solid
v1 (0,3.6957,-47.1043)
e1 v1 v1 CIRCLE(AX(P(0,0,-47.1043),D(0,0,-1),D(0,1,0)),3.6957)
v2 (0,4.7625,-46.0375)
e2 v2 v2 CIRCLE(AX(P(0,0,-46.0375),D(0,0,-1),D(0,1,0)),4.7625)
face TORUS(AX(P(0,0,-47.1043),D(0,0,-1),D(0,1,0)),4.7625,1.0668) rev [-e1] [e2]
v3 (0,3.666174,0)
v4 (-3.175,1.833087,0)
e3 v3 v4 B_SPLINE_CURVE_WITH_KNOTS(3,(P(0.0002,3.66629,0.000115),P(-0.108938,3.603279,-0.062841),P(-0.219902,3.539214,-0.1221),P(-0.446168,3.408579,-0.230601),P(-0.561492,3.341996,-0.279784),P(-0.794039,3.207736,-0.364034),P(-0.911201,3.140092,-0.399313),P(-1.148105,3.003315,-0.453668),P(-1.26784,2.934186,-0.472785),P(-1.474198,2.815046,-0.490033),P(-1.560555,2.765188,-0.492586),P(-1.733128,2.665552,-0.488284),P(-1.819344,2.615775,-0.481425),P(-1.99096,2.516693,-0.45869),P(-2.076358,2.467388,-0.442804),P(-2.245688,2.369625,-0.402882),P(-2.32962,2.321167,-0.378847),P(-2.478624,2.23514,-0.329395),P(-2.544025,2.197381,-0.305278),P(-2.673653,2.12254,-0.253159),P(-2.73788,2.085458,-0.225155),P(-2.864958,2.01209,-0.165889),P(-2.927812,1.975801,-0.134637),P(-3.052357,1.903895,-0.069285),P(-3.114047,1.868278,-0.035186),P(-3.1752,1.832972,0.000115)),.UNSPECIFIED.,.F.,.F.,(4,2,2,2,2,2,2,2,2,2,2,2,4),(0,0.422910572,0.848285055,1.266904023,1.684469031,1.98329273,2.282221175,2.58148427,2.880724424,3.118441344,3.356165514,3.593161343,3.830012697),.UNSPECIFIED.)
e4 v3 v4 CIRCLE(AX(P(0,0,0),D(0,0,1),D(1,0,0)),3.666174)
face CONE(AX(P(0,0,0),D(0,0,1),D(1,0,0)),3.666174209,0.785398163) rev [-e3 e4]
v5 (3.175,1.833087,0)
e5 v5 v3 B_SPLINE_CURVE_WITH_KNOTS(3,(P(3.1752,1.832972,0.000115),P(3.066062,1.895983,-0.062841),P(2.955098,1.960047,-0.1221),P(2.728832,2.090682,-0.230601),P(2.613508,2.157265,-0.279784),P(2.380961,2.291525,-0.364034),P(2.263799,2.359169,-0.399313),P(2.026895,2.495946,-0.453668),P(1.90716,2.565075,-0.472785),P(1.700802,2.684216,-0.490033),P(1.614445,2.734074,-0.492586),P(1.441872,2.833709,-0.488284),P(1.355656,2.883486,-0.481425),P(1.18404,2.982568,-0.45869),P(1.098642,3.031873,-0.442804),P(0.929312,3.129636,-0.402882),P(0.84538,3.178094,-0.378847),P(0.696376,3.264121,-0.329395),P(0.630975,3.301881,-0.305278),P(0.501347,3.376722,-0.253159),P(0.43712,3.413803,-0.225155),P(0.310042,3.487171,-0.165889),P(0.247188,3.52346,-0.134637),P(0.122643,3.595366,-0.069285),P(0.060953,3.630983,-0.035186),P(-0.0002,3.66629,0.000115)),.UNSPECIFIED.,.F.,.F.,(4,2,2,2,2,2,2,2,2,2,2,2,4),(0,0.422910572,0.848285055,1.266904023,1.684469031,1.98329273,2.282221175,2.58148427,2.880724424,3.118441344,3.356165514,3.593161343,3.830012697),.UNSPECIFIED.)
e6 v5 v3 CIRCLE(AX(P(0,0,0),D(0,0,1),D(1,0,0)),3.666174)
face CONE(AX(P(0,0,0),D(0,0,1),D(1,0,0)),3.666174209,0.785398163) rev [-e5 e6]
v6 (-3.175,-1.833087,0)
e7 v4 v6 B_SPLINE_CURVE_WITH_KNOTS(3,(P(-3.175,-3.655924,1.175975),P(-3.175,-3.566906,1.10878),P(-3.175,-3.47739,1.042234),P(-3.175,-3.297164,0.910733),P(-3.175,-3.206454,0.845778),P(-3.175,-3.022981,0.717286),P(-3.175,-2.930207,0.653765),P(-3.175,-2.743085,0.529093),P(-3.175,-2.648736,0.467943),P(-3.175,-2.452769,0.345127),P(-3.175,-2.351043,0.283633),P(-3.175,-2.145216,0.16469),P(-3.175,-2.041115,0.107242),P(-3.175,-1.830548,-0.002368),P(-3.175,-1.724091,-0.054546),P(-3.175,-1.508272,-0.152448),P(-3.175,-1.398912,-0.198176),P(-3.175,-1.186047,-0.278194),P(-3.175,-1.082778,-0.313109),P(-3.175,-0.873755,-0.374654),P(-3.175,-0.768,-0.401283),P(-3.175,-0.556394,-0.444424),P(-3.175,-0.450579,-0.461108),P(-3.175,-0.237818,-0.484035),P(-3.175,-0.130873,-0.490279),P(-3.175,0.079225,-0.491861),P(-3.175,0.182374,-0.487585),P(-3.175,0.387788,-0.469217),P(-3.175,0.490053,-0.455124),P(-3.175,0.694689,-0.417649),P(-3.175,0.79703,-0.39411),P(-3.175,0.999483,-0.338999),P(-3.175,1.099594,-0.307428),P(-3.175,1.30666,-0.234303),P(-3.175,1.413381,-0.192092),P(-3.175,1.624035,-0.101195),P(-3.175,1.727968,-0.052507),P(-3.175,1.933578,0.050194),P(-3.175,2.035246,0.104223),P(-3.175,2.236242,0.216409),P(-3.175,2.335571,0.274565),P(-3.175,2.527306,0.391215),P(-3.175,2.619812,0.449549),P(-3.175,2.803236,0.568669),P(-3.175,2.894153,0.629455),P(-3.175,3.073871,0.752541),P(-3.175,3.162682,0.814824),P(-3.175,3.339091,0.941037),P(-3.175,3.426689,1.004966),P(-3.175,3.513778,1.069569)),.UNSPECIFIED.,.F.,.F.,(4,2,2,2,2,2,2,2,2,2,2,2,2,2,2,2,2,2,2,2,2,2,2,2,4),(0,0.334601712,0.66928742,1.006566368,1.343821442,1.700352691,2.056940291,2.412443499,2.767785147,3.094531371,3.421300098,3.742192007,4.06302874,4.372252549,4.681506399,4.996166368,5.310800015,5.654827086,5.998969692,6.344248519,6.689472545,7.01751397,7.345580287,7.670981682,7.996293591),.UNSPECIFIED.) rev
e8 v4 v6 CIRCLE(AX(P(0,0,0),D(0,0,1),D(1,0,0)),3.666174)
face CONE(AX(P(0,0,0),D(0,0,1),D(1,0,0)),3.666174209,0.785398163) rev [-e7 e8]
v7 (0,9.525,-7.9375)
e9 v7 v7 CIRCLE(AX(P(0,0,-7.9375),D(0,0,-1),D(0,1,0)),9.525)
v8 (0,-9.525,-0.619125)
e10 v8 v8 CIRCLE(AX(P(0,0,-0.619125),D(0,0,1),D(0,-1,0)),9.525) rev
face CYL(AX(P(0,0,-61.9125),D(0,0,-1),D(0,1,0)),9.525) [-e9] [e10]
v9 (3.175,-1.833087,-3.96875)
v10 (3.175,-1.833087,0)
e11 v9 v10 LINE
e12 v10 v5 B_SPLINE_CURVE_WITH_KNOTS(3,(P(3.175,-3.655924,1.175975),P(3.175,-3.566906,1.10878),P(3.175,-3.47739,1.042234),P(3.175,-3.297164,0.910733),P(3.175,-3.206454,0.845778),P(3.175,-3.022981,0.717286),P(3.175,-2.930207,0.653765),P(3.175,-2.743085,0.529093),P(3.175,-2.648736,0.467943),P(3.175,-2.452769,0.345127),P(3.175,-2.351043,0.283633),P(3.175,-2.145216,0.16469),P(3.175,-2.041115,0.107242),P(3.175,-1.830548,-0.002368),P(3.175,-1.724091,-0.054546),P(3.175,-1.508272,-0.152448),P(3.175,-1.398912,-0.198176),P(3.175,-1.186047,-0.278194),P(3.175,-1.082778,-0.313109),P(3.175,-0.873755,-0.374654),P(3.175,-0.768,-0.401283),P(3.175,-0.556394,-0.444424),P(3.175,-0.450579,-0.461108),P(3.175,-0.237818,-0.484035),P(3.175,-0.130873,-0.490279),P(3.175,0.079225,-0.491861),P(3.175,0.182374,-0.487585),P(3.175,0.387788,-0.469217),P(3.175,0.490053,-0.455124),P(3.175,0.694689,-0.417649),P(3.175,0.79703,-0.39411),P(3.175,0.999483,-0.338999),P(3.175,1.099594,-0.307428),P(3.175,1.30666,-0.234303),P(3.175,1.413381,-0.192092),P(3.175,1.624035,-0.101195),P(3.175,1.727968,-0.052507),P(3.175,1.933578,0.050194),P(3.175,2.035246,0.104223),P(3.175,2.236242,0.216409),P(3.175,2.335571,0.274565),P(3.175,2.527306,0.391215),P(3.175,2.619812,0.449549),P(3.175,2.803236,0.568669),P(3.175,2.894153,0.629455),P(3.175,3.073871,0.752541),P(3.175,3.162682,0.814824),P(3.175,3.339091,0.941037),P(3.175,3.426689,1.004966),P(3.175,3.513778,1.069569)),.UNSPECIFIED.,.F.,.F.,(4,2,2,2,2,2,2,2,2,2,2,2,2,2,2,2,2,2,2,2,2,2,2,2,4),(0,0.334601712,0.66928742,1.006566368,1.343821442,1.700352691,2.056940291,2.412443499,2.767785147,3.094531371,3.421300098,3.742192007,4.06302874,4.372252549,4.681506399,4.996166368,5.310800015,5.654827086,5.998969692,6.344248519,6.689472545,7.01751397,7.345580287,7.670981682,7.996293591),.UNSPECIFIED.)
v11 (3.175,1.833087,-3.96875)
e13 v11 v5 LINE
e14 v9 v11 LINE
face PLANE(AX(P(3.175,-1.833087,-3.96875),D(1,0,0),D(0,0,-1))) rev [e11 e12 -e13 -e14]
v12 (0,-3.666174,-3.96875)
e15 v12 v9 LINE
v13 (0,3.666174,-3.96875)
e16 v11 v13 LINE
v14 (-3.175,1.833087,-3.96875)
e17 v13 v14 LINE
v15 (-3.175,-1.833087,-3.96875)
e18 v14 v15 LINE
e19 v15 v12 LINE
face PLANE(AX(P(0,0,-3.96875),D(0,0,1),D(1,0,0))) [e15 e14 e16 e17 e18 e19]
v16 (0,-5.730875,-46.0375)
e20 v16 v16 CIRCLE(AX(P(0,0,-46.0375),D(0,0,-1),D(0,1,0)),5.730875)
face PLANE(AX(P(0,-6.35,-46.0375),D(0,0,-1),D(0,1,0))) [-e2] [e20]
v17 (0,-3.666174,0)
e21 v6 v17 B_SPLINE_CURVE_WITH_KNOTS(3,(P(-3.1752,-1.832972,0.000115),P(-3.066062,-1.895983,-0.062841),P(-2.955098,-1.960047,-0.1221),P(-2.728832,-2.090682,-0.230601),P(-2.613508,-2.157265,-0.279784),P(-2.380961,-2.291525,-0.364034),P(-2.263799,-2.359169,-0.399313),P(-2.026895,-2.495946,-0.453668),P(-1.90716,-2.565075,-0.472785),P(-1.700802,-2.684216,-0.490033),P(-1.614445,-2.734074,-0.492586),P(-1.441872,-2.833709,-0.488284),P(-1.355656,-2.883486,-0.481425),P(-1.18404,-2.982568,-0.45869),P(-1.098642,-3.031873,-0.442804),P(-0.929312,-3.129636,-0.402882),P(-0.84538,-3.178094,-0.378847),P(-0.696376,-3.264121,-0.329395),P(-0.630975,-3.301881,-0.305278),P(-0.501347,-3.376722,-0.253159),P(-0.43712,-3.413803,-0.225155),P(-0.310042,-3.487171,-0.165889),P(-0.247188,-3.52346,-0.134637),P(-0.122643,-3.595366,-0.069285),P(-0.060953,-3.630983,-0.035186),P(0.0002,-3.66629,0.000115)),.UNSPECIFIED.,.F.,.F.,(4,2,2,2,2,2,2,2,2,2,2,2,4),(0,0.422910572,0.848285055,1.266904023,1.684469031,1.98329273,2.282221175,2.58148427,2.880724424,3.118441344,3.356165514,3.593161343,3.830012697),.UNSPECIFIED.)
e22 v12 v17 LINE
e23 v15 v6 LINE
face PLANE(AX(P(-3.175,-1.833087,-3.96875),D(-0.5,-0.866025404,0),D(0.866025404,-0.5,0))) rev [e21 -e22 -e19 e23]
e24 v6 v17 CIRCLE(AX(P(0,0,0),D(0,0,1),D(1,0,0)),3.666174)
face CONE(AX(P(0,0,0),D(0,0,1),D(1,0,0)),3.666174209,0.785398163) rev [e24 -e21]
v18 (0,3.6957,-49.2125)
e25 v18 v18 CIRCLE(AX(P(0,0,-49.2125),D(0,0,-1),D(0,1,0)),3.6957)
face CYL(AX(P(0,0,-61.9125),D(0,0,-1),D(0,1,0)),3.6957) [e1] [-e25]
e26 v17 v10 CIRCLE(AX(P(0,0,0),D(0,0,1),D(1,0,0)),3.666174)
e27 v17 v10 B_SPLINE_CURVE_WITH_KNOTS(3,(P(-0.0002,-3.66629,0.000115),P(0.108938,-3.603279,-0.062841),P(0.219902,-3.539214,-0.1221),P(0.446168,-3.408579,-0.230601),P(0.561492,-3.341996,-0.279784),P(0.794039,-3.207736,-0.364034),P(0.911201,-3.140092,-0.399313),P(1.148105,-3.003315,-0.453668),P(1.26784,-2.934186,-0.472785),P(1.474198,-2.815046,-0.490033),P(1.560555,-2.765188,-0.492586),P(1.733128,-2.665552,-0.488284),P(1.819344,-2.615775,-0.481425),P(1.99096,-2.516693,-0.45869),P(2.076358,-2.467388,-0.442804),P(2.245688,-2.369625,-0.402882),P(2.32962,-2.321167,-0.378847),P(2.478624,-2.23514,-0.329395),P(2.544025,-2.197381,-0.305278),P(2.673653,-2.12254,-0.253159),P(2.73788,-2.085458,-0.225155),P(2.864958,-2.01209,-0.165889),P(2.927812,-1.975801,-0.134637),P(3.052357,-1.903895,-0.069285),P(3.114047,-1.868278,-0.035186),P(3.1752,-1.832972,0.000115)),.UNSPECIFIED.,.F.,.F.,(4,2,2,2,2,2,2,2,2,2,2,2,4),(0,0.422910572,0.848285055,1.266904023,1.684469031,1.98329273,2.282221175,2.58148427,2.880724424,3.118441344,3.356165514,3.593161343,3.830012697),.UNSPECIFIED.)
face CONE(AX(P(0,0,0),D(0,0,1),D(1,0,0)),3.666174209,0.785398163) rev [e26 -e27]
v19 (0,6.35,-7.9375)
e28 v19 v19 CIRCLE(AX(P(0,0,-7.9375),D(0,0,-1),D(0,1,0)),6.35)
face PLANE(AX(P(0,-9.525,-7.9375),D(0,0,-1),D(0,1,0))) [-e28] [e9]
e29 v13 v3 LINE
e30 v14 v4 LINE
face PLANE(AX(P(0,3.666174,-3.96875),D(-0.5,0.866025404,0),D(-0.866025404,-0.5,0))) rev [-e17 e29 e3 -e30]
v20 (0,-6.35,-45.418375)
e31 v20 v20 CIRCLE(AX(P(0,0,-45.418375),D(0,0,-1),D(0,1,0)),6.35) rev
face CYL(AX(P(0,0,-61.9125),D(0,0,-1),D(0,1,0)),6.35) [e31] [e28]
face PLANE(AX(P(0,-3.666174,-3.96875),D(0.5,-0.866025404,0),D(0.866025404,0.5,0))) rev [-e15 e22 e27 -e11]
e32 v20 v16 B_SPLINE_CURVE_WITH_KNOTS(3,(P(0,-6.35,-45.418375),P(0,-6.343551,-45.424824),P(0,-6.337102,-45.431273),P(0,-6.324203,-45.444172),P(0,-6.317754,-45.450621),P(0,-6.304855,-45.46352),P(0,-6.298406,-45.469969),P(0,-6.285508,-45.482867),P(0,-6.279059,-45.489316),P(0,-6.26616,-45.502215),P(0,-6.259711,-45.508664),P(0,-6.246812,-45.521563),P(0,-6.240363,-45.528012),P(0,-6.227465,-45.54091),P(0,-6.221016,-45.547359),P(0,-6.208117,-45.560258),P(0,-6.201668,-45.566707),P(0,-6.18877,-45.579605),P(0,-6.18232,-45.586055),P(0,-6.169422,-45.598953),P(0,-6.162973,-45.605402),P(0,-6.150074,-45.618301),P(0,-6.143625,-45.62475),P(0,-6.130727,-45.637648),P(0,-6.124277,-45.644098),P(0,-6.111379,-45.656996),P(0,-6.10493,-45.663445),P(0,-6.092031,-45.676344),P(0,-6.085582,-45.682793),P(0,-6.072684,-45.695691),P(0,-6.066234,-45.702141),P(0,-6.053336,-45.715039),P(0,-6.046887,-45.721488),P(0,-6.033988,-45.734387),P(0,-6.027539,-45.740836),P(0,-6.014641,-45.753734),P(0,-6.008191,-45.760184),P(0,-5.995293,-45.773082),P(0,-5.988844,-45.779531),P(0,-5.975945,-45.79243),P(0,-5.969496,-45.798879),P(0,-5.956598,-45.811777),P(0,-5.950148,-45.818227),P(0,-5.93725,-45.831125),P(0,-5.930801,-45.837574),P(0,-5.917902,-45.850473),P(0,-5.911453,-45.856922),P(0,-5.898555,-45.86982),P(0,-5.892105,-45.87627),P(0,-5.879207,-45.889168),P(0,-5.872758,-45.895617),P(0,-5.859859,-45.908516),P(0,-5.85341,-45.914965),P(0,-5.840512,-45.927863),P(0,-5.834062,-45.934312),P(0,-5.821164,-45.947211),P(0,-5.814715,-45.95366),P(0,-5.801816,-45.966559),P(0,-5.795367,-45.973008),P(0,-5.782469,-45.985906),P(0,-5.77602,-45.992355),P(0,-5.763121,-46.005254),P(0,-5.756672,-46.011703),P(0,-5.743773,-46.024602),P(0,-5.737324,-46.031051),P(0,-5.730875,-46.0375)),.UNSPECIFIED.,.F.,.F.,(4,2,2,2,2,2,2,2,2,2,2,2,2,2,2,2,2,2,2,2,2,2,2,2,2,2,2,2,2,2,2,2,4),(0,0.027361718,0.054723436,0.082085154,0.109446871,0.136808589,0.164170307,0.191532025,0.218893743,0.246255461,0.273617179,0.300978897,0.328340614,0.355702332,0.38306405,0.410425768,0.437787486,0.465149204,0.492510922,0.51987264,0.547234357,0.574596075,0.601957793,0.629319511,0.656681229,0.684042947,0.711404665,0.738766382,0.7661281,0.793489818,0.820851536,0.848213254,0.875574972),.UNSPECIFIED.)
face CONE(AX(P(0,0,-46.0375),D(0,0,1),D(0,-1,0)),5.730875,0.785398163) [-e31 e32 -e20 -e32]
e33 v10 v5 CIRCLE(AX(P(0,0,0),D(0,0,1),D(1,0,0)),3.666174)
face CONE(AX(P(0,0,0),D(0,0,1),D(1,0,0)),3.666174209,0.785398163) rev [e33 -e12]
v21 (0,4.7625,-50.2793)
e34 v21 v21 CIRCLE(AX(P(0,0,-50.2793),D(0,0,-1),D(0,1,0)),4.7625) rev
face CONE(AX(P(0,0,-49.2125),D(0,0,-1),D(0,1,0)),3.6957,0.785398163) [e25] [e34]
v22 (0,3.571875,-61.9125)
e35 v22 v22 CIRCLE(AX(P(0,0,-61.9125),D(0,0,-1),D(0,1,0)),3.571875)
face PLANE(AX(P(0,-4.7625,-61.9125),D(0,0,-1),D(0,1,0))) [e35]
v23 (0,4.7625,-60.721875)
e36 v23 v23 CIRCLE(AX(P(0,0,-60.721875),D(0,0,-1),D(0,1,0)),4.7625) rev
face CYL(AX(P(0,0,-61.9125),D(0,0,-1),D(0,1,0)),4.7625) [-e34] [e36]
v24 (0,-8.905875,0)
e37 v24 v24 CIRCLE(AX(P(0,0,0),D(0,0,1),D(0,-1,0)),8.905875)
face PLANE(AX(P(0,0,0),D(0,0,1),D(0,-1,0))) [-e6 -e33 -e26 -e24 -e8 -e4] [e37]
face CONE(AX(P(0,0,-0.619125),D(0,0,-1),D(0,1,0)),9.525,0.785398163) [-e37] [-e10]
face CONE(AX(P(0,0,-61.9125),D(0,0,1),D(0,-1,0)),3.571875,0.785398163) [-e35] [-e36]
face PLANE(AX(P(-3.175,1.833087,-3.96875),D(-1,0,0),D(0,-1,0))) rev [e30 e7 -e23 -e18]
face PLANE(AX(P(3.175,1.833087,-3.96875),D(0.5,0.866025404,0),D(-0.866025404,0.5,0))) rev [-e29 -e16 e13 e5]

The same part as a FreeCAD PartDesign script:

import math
import FreeCAD as App
import Part
import Sketcher
Q = App.Units.Quantity


def edges_at(feature, points):
    """Names of the edges that pass closest to the given points."""
    edges = feature.Shape.Edges
    near = lambda p: min(range(len(edges)), key=lambda i: edges[i].distToShape(Part.Vertex(*p))[0])
    return sorted({f"Edge{near(p) + 1}" for p in points})

doc = App.newDocument("Part")
body = doc.addObject("PartDesign::Body", "Body")

# Sketch on YZ plane
sketch1 = doc.addObject("Sketcher::SketchObject", "Sketch")
body.addObject(sketch1)
sketch1.AttachmentSupport = (doc.YZ_Plane, [""])
sketch1.MapMode = "FlatFace"
sketch1.addGeometry(Part.LineSegment(App.Vector(9.5, -7.9, 0), App.Vector(9.5, 0, 0)), False)
sketch1.addGeometry(Part.LineSegment(App.Vector(9.5, 0, 0), App.Vector(0, 0, 0)), False)
sketch1.addGeometry(Part.LineSegment(App.Vector(0, 0, 0), App.Vector(0, -61.9, 0)), False)
sketch1.addGeometry(Part.LineSegment(App.Vector(0, -61.9, 0), App.Vector(4.8, -61.9, 0)), False)
sketch1.addGeometry(Part.LineSegment(App.Vector(4.8, -61.9, 0), App.Vector(4.8, -46, 0)), False)
sketch1.addGeometry(Part.LineSegment(App.Vector(4.8, -46, 0), App.Vector(6.3, -46, 0)), False)
sketch1.addGeometry(Part.LineSegment(App.Vector(6.3, -46, 0), App.Vector(6.3, -7.9, 0)), False)
sketch1.addGeometry(Part.LineSegment(App.Vector(6.3, -7.9, 0), App.Vector(9.5, -7.9, 0)), False)
sketch1.addConstraint(Sketcher.Constraint("Coincident", 0, 2, 1, 1))
sketch1.addConstraint(Sketcher.Constraint("Coincident", 1, 2, 2, 1))
sketch1.addConstraint(Sketcher.Constraint("Coincident", 2, 2, 3, 1))
sketch1.addConstraint(Sketcher.Constraint("Coincident", 3, 2, 4, 1))
sketch1.addConstraint(Sketcher.Constraint("Coincident", 4, 2, 5, 1))
sketch1.addConstraint(Sketcher.Constraint("Coincident", 5, 2, 6, 1))
sketch1.addConstraint(Sketcher.Constraint("Coincident", 6, 2, 7, 1))
sketch1.addConstraint(Sketcher.Constraint("Coincident", 7, 2, 0, 1))
sketch1.addConstraint(Sketcher.Constraint("Vertical", 0))
sketch1.addConstraint(Sketcher.Constraint("Horizontal", 1))
sketch1.addConstraint(Sketcher.Constraint("Vertical", 2))
sketch1.addConstraint(Sketcher.Constraint("Horizontal", 3))
sketch1.addConstraint(Sketcher.Constraint("Vertical", 4))
sketch1.addConstraint(Sketcher.Constraint("Horizontal", 5))
sketch1.addConstraint(Sketcher.Constraint("Vertical", 6))
sketch1.addConstraint(Sketcher.Constraint("Horizontal", 7))
sketch1.addConstraint(Sketcher.Constraint("Coincident", 1, 2, -1, 1))
sketch1.addConstraint(Sketcher.Constraint("DistanceY", 6, 1, 6, 2, Q("1.5 in")))
sketch1.addConstraint(Sketcher.Constraint("DistanceX", 1, 2, 1, 1, Q("0.375 in")))
sketch1.addConstraint(Sketcher.Constraint("DistanceX", 3, 1, 3, 2, Q("0.1875 in")))
sketch1.addConstraint(Sketcher.Constraint("DistanceX", 5, 1, 5, 2, Q("0.0625 in")))
sketch1.addConstraint(Sketcher.Constraint("DistanceY", 0, 1, 0, 2, Q("0.3125 in")))
sketch1.addConstraint(Sketcher.Constraint("DistanceY", 2, 2, 2, 1, Q("2.4375 in")))
revolution = doc.addObject("PartDesign::Revolution", "Revolution")
body.addObject(revolution)
revolution.Profile = sketch1
revolution.ReferenceAxis = (sketch1, ["V_Axis"])
revolution.Angle = 360

# Sketch on YZ plane
sketch2 = doc.addObject("Sketcher::SketchObject", "Sketch001")
body.addObject(sketch2)
sketch2.AttachmentSupport = (doc.YZ_Plane, [""])
sketch2.MapMode = "FlatFace"
sketch2.addGeometry(Part.LineSegment(App.Vector(6.3, -51.9, 0), App.Vector(6.3, -46, 0)), False)
sketch2.addGeometry(Part.LineSegment(App.Vector(6.3, -46, 0), App.Vector(4.8, -46, 0)), False)
sketch2.addGeometry(Part.ArcOfCircle(Part.Circle(App.Vector(4.8, -47.1, 0), App.Vector(0, 0, 1), 1.1), math.radians(90), math.radians(180)), False)
sketch2.addGeometry(Part.LineSegment(App.Vector(3.7, -47.1, 0), App.Vector(3.7, -49.2, 0)), False)
sketch2.addGeometry(Part.LineSegment(App.Vector(3.7, -49.2, 0), App.Vector(6.3, -51.9, 0)), False)
sketch2.addConstraint(Sketcher.Constraint("Coincident", 0, 2, 1, 1))
sketch2.addConstraint(Sketcher.Constraint("Tangent", 1, 2, 2, 1))
sketch2.addConstraint(Sketcher.Constraint("Tangent", 2, 2, 3, 1))
sketch2.addConstraint(Sketcher.Constraint("Coincident", 3, 2, 4, 1))
sketch2.addConstraint(Sketcher.Constraint("Coincident", 4, 2, 0, 1))
sketch2.addConstraint(Sketcher.Constraint("Vertical", 0))
sketch2.addConstraint(Sketcher.Constraint("Horizontal", 1))
sketch2.addConstraint(Sketcher.Constraint("Vertical", 3))
sketch2.addConstraint(Sketcher.Constraint("Angle", 4, Q("-45 deg")))
sketch2.addConstraint(Sketcher.Constraint("Radius", 2, Q("0.042 in")))
sketch2.addConstraint(Sketcher.Constraint("DistanceX", 1, 2, 1, 1, Q("0.0625 in")))
sketch2.addConstraint(Sketcher.Constraint("DistanceY", 3, 2, 3, 1, Q("0.083 in")))
sketch2.addConstraint(Sketcher.Constraint("DistanceX", -1, 1, 0, 2, Q("0.25 in")))
sketch2.addConstraint(Sketcher.Constraint("DistanceY", 0, 2, -1, 1, Q("1.8125 in")))
groove = doc.addObject("PartDesign::Groove", "Groove")
body.addObject(groove)
groove.Profile = sketch2
groove.ReferenceAxis = (sketch2, ["V_Axis"])
groove.Angle = 360
doc.recompute()

chamfer = doc.addObject("PartDesign::Chamfer", "Chamfer")
body.addObject(chamfer)
chamfer.Base = (groove, edges_at(groove, [(0, -4.763, -61.913)]))
chamfer.Size = Q("0.046875 in")
doc.recompute()

chamfer2 = doc.addObject("PartDesign::Chamfer", "Chamfer001")
body.addObject(chamfer2)
chamfer2.Base = (chamfer, edges_at(chamfer, [(0, -6.35, -46.038), (0, -9.525, 0)]))
chamfer2.Size = 0.619125

# Sketch on XY plane
sketch3 = doc.addObject("Sketcher::SketchObject", "Sketch002")
body.addObject(sketch3)
sketch3.AttachmentSupport = (doc.XY_Plane, [""])
sketch3.MapMode = "FlatFace"
sketch3.addGeometry(Part.LineSegment(App.Vector(3.2, 1.8, 0), App.Vector(0, 3.7, 0)), False)
sketch3.addGeometry(Part.LineSegment(App.Vector(0, 3.7, 0), App.Vector(-3.2, 1.8, 0)), False)
sketch3.addGeometry(Part.LineSegment(App.Vector(-3.2, 1.8, 0), App.Vector(-3.2, -1.8, 0)), False)
sketch3.addGeometry(Part.LineSegment(App.Vector(-3.2, -1.8, 0), App.Vector(0, -3.7, 0)), False)
sketch3.addGeometry(Part.LineSegment(App.Vector(0, -3.7, 0), App.Vector(3.2, -1.8, 0)), False)
sketch3.addGeometry(Part.LineSegment(App.Vector(3.2, -1.8, 0), App.Vector(3.2, 1.8, 0)), False)
sketch3.addConstraint(Sketcher.Constraint("Coincident", 0, 2, 1, 1))
sketch3.addConstraint(Sketcher.Constraint("Coincident", 1, 2, 2, 1))
sketch3.addConstraint(Sketcher.Constraint("Coincident", 2, 2, 3, 1))
sketch3.addConstraint(Sketcher.Constraint("Coincident", 3, 2, 4, 1))
sketch3.addConstraint(Sketcher.Constraint("Coincident", 4, 2, 5, 1))
sketch3.addConstraint(Sketcher.Constraint("Coincident", 5, 2, 0, 1))
sketch3.addConstraint(Sketcher.Constraint("Vertical", 2))
sketch3.addConstraint(Sketcher.Constraint("Vertical", 5))
sketch3.addConstraint(Sketcher.Constraint("Symmetric", 0, 2, 3, 2, -1, 1))
sketch3.addConstraint(Sketcher.Constraint("Symmetric", 1, 2, 4, 2, -1, 1))
sketch3.addConstraint(Sketcher.Constraint("PointOnObject", 0, 2, -2))
sketch3.addConstraint(Sketcher.Constraint("Parallel", 0, 3))
sketch3.addConstraint(Sketcher.Constraint("Horizontal", 2, 2, 4, 2))
sketch3.addConstraint(Sketcher.Constraint("Angle", 0, Q("150 deg")))
sketch3.addConstraint(Sketcher.Constraint("DistanceX", 2, 2, 4, 2, Q("0.25 in")))
sketch3.addConstraint(Sketcher.Constraint("DistanceY", 2, 2, 2, 1, Q("3.666174 mm")))
pocket1 = doc.addObject("PartDesign::Pocket", "Pocket")
body.addObject(pocket1)
pocket1.Profile = sketch3
pocket1.Length = Q("0.15625 in")

# Sketch on YZ plane
sketch4 = doc.addObject("Sketcher::SketchObject", "Sketch003")
body.addObject(sketch4)
sketch4.AttachmentSupport = (doc.YZ_Plane, [""])
sketch4.MapMode = "FlatFace"
sketch4.addGeometry(Part.LineSegment(App.Vector(0, 0, 0), App.Vector(-3.7, 0, 0)), False)
sketch4.addGeometry(Part.LineSegment(App.Vector(-3.7, 0, 0), App.Vector(0, -3.7, 0)), False)
sketch4.addGeometry(Part.LineSegment(App.Vector(0, -3.7, 0), App.Vector(0, 0, 0)), False)
sketch4.addConstraint(Sketcher.Constraint("Coincident", 0, 2, 1, 1))
sketch4.addConstraint(Sketcher.Constraint("Coincident", 1, 2, 2, 1))
sketch4.addConstraint(Sketcher.Constraint("Coincident", 2, 2, 0, 1))
sketch4.addConstraint(Sketcher.Constraint("Horizontal", 0))
sketch4.addConstraint(Sketcher.Constraint("Vertical", 2))
sketch4.addConstraint(Sketcher.Constraint("Coincident", 2, 2, -1, 1))
sketch4.addConstraint(Sketcher.Constraint("Equal", 0, 2))
sketch4.addConstraint(Sketcher.Constraint("DistanceX", 0, 2, 0, 1, Q("3.666174 mm")))
groove2 = doc.addObject("PartDesign::Groove", "Groove001")
body.addObject(groove2)
groove2.Profile = sketch4
groove2.ReferenceAxis = (sketch4, ["V_Axis"])
groove2.Angle = 360

doc.recompute()
